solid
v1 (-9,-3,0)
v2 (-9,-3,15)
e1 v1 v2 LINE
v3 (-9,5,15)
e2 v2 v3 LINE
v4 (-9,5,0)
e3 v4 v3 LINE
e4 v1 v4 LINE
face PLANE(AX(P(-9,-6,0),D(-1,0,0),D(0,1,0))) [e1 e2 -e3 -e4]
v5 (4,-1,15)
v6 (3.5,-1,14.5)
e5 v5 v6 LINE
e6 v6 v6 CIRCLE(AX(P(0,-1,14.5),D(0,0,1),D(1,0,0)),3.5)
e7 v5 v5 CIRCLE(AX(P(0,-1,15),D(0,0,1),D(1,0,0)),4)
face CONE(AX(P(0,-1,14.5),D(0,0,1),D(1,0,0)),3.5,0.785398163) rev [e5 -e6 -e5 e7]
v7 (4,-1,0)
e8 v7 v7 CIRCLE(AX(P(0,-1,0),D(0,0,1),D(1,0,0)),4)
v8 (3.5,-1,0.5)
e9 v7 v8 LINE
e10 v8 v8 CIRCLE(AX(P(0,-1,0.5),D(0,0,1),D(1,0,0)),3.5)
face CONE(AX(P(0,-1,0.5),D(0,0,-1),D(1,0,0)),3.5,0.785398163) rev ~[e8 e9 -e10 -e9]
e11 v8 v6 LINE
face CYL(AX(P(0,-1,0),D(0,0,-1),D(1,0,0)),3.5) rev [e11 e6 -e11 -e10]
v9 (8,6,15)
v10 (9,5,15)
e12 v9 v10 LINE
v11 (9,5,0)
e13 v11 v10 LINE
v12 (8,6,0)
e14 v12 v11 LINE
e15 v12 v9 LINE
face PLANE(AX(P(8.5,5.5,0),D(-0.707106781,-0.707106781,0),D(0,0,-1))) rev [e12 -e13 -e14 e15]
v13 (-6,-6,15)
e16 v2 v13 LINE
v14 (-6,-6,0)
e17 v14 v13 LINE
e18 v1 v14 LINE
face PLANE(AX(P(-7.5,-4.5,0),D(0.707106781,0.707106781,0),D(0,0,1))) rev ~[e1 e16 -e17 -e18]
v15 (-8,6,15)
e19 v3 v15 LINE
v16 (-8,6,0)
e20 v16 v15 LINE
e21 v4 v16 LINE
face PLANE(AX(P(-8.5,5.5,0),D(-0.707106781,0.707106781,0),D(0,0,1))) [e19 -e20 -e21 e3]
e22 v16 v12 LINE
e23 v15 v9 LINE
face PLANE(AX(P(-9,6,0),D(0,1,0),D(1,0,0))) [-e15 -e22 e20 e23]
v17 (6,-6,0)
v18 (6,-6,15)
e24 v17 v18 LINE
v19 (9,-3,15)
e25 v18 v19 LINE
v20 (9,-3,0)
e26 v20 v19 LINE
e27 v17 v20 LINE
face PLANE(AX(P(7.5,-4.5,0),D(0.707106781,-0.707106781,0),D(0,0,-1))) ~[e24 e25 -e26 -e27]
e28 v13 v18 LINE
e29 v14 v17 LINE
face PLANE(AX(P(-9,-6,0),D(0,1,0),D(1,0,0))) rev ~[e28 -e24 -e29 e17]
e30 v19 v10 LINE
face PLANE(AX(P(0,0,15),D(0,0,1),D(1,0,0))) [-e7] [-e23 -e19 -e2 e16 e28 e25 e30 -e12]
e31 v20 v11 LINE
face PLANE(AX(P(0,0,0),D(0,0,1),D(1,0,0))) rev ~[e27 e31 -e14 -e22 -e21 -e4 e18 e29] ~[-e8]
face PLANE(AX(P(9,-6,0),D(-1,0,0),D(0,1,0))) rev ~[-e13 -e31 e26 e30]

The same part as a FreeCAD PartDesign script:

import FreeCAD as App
import Part
import Sketcher
from FreeCAD import Vector


def edges_at(feature, points):
    """Names of the edges that pass closest to the given points."""
    edges = feature.Shape.Edges
    near = lambda p: min(range(len(edges)), key=lambda i: edges[i].distToShape(Part.Vertex(*p))[0])
    return sorted({f"Edge{near(p) + 1}" for p in points})


def add_polygon(sketch, points):
    """Adds a closed chain of lines whose ends are joined by coincident constraints."""
    first, n = sketch.GeometryCount, len(points)
    for a, b in zip(points, points[1:] + points[:1]):
        sketch.addGeometry(Part.LineSegment(App.Vector(*a, 0), App.Vector(*b, 0)), False)
    for i in range(n):
        sketch.addConstraint(Sketcher.Constraint("Coincident", first + i, 2, first + (i + 1) % n, 1))

doc = App.newDocument("Part")
body = doc.addObject("PartDesign::Body", "Body")

sketch1 = body.newObject("Sketcher::SketchObject", "Sketch")
sketch1.AttachmentSupport = (doc.getObject("XY_Plane"), [""])
sketch1.MapMode = "FlatFace"
add_polygon(sketch1, [(-9, 6), (-9, -6), (9, -6), (9, 6)])
sketch1.addGeometry(Part.Circle(Vector(0, -1, 0), Vector(0, 0, 1), 3.5), False)
sketch1.addConstraint([
    Sketcher.Constraint("Vertical", 0),
    Sketcher.Constraint("Horizontal", 1),
    Sketcher.Constraint("Vertical", 2),
    Sketcher.Constraint("Horizontal", 3),
    Sketcher.Constraint("Symmetric", 0, 2, 2, 2, -1, 1),
    Sketcher.Constraint("PointOnObject", 4, 3, -2),
    Sketcher.Constraint("Diameter", 4, 7.0),
    Sketcher.Constraint("DistanceX", 1, 1, 1, 2, 18.0),
    Sketcher.Constraint("DistanceY", 0, 2, 0, 1, 12.0),
    Sketcher.Constraint("DistanceY", 4, 3, -1, 1, 1.0),
])
pad1 = body.newObject("PartDesign::Pad", "Pad")
pad1.Profile = sketch1
pad1.Length = 15
doc.recompute()

chamfer = body.newObject("PartDesign::Chamfer", "Chamfer")
chamfer.Base = (pad1, edges_at(pad1, [(9, -6, 7.5), (-9, -6, 7.5)]))
chamfer.Size = 3
doc.recompute()

chamfer2 = body.newObject("PartDesign::Chamfer", "Chamfer001")
chamfer2.Base = (chamfer, edges_at(chamfer, [(9, 6, 7.5), (-9, 6, 7.5)]))
chamfer2.Size = 1
doc.recompute()

chamfer3 = body.newObject("PartDesign::Chamfer", "Chamfer002")
chamfer3.Base = (chamfer2, edges_at(chamfer2, [(-3.5, -1, 0), (-3.5, -1, 15)]))
chamfer3.Size = 0.5

doc.recompute()
